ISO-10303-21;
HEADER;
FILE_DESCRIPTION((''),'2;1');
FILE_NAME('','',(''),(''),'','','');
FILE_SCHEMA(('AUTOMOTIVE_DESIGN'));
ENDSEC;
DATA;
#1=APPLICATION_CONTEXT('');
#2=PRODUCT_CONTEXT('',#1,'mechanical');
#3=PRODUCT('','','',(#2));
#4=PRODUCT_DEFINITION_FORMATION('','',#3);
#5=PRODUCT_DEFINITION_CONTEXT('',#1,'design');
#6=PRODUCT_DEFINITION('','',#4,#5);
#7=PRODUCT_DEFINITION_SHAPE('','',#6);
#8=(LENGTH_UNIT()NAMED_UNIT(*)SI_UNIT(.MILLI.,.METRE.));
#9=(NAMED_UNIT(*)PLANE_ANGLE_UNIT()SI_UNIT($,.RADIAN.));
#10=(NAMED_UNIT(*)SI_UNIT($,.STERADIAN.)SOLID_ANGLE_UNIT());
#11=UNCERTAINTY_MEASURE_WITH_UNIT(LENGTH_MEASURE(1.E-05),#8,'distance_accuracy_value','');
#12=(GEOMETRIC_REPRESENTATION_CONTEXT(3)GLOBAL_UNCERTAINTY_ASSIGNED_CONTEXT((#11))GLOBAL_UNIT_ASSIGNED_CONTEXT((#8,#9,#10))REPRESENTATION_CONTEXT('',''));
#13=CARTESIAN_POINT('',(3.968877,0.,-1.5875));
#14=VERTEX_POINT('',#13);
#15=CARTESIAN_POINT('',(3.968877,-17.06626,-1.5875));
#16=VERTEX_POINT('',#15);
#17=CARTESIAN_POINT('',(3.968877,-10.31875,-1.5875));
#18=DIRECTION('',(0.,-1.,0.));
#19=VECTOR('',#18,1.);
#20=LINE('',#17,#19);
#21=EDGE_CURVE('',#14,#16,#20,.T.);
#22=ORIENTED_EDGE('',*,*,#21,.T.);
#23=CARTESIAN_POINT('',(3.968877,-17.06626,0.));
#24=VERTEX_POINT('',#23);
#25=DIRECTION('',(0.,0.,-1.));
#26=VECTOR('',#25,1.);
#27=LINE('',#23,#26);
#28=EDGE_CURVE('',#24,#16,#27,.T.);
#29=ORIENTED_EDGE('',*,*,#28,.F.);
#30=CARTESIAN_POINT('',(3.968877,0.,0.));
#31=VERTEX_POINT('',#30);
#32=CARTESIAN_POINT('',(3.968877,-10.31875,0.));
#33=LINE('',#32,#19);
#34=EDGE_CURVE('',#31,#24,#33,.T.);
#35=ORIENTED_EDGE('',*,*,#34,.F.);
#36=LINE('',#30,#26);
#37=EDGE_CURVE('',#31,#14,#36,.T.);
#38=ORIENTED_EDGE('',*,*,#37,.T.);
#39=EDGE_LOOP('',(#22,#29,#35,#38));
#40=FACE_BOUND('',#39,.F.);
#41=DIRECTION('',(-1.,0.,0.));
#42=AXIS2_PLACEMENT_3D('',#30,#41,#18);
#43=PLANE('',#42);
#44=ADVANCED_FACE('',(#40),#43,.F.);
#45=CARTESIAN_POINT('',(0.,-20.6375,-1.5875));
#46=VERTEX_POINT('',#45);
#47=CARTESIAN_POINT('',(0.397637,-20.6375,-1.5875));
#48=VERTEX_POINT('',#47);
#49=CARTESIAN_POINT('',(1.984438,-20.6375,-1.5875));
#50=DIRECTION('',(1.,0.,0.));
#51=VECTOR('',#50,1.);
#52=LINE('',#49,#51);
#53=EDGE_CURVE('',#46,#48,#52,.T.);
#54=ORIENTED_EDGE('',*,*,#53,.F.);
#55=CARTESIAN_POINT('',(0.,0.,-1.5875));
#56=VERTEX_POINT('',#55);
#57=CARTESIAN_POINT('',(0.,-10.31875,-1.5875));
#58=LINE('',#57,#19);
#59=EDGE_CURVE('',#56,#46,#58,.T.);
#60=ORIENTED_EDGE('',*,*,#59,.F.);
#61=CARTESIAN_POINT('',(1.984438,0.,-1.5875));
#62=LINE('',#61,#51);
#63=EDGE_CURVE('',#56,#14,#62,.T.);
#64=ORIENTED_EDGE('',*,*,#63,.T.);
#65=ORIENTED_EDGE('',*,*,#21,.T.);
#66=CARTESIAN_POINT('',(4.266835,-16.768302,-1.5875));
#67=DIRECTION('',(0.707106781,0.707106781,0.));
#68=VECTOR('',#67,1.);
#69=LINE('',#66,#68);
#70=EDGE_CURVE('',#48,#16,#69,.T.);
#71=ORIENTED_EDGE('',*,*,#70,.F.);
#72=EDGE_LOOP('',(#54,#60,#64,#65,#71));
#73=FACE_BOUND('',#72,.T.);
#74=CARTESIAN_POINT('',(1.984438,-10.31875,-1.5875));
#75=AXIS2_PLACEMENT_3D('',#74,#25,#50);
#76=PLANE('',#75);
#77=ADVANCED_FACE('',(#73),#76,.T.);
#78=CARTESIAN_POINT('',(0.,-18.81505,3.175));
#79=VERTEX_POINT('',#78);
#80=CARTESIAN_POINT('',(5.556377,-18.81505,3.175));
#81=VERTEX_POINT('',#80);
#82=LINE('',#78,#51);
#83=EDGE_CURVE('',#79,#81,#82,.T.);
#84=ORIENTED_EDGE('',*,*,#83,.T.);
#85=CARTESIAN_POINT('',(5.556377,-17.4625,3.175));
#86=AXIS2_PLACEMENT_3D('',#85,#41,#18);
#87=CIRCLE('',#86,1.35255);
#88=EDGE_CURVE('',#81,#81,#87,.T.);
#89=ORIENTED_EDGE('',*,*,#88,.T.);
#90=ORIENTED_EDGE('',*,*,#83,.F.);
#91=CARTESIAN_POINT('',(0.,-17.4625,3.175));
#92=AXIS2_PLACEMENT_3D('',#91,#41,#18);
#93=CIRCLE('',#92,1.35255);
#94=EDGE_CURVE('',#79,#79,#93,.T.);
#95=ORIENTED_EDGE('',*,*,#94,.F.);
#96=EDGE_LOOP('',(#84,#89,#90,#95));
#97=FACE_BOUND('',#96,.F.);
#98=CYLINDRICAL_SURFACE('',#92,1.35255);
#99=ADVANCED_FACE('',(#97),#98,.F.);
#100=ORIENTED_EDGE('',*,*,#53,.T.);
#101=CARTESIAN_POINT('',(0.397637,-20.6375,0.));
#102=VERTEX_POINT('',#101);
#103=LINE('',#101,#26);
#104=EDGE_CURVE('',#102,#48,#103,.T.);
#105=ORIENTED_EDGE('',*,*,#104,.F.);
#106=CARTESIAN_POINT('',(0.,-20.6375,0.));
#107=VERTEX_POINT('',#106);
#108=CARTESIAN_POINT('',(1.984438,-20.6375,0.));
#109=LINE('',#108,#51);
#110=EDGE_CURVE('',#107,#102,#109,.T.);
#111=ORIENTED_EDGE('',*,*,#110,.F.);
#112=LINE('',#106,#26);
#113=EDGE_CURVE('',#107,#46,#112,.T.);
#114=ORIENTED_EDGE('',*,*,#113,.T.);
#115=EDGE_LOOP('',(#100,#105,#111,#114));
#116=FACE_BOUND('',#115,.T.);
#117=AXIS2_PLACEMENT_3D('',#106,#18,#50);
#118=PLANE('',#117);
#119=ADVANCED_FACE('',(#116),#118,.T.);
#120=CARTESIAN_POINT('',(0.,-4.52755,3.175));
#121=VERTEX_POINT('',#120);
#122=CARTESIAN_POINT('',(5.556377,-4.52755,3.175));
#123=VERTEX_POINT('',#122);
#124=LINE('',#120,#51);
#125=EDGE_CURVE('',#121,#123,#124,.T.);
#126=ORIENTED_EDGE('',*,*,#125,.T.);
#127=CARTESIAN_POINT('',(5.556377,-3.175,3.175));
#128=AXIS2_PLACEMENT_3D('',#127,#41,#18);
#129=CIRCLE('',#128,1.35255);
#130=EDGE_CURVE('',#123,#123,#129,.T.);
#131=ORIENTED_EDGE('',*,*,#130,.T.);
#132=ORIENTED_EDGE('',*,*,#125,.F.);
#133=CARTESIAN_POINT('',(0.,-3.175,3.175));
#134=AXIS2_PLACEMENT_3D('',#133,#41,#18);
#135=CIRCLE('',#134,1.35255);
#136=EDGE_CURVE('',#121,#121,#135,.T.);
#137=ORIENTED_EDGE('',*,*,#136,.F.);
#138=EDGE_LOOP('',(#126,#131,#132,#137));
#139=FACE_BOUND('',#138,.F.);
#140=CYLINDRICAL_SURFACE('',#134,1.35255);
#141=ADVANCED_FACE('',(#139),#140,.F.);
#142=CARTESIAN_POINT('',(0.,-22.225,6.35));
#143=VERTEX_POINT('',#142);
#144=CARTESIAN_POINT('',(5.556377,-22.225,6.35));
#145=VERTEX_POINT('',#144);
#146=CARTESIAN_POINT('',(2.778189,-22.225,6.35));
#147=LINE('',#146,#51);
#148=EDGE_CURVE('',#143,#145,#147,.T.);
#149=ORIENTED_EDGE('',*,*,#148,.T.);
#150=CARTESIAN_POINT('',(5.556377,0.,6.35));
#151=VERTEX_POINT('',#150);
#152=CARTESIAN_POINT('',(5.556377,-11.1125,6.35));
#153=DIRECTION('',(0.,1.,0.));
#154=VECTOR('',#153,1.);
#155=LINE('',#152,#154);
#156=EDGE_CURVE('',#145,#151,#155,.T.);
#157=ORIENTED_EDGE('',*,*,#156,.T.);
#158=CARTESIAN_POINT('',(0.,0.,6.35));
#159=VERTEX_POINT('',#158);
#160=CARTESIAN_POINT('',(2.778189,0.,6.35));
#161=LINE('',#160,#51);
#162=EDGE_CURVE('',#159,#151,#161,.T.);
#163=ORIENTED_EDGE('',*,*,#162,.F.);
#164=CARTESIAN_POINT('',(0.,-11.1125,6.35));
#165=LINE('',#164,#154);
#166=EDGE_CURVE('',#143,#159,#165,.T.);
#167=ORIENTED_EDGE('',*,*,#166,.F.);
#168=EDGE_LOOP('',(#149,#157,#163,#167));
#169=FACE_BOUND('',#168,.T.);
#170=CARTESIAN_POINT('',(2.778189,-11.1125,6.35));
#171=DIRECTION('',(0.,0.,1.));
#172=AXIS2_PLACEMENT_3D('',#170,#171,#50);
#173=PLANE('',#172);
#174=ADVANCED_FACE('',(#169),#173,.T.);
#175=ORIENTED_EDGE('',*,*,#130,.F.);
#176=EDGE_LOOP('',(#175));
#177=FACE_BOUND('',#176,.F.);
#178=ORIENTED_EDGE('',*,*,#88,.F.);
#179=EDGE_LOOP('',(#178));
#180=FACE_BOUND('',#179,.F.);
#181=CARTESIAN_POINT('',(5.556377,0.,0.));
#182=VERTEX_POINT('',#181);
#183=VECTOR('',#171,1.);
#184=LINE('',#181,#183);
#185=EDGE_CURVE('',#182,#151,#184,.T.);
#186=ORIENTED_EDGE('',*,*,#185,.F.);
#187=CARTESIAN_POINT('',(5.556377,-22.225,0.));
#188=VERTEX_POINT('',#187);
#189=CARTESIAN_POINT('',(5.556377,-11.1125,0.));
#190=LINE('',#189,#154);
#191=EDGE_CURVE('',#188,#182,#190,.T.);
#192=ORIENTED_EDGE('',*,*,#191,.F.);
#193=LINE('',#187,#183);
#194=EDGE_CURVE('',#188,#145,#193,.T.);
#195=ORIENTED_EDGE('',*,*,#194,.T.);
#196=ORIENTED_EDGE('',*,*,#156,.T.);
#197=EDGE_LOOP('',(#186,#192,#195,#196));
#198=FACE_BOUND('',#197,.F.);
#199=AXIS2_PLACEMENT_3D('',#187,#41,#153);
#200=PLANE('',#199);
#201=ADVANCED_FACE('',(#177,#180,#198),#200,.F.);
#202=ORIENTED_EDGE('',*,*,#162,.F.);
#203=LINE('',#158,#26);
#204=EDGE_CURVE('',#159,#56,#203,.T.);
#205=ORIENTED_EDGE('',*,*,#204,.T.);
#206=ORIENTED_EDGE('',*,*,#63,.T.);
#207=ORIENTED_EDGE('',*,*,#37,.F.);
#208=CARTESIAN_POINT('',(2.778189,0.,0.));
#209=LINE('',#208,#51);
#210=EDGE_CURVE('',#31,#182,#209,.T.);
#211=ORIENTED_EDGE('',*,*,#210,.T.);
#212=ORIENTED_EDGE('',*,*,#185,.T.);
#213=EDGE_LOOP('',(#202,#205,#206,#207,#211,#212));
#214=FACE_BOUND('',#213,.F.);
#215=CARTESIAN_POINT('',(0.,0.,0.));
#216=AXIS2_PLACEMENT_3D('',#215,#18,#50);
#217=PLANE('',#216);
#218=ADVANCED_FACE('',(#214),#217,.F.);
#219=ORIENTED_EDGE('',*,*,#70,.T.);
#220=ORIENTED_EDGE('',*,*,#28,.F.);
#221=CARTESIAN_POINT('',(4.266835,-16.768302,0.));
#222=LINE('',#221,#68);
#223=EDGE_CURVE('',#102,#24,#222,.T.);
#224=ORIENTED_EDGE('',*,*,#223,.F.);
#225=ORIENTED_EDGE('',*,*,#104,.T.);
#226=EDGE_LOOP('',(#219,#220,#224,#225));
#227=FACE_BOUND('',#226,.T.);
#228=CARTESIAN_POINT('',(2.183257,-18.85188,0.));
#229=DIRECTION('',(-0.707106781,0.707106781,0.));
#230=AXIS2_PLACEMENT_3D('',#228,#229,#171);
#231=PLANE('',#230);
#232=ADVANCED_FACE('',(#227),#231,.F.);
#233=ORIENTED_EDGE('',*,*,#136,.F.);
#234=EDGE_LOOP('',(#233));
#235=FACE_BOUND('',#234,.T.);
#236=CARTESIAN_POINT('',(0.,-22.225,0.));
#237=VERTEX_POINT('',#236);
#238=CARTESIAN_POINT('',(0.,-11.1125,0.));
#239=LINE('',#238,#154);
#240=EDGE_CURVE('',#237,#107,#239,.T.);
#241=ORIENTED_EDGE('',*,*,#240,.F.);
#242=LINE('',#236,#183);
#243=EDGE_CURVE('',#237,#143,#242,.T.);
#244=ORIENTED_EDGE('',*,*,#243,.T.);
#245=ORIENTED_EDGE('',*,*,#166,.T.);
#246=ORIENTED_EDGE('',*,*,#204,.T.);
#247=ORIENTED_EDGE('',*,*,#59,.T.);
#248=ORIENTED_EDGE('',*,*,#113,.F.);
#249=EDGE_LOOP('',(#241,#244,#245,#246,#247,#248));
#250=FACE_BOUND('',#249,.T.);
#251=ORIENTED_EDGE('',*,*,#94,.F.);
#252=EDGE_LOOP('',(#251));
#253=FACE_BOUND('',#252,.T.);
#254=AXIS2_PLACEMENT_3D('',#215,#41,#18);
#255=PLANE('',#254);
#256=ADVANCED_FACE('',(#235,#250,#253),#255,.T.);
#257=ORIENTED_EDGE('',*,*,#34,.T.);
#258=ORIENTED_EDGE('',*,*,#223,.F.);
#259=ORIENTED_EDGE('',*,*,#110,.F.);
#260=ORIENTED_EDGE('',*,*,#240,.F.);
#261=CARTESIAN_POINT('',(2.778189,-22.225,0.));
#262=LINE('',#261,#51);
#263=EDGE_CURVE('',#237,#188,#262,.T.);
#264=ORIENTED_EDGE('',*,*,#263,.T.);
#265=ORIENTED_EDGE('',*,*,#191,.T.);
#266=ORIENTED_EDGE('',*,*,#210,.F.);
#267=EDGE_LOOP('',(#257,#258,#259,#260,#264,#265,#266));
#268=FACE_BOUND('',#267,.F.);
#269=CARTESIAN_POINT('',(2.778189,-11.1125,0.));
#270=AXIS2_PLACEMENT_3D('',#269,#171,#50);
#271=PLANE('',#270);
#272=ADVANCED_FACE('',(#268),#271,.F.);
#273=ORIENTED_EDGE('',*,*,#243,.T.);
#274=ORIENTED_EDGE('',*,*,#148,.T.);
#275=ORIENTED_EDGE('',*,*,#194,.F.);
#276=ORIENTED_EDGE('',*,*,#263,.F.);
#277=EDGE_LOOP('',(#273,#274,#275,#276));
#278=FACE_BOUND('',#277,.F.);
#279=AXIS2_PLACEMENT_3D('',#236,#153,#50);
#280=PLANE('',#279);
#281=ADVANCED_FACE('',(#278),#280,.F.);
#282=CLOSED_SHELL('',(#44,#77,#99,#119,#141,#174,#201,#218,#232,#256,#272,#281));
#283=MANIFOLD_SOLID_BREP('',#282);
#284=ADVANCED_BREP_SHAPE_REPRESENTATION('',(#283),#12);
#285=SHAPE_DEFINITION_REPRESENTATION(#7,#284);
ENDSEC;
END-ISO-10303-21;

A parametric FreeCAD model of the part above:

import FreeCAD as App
import Part
import Sketcher
from FreeCAD import Vector
Q = App.Units.Quantity


def edges_at(feature, points):
    """Names of the edges that pass closest to the given points."""
    edges = feature.Shape.Edges
    near = lambda p: min(range(len(edges)), key=lambda i: edges[i].distToShape(Part.Vertex(*p))[0])
    return sorted({f"Edge{near(p) + 1}" for p in points})


def add_polygon(sketch, points):
    """Adds a closed chain of lines whose ends are joined by coincident constraints."""
    first, n = sketch.GeometryCount, len(points)
    for a, b in zip(points, points[1:] + points[:1]):
        sketch.addGeometry(Part.LineSegment(App.Vector(*a, 0), App.Vector(*b, 0)), False)
    for i in range(n):
        sketch.addConstraint(Sketcher.Constraint("Coincident", first + i, 2, first + (i + 1) % n, 1))

doc = App.newDocument("Part")
body = doc.addObject("PartDesign::Body", "Body")

sketch1 = body.newObject("Sketcher::SketchObject", "Sketch")
sketch1.AttachmentSupport = (doc.getObject("XY_Plane"), [""])
sketch1.MapMode = "FlatFace"
add_polygon(sketch1, [(0, 0), (0, -22), (6, -22), (6, 0)])
sketch1.addConstraint(Sketcher.Constraint("Vertical", 0))
sketch1.addConstraint(Sketcher.Constraint("Horizontal", 1))
sketch1.addConstraint(Sketcher.Constraint("Vertical", 2))
sketch1.addConstraint(Sketcher.Constraint("Horizontal", 3))
sketch1.addConstraint(Sketcher.Constraint("Coincident", 3, 2, -1, 1))
sketch1.addConstraint(Sketcher.Constraint("DistanceY", 0, 2, 0, 1, Q("0.875 in")))
sketch1.addConstraint(Sketcher.Constraint("DistanceX", 1, 1, 1, 2, Q("5.556377 mm")))
pad1 = body.newObject("PartDesign::Pad", "Pad")
pad1.Profile = sketch1
pad1.Length = Q("0.25 in")

sketch2 = body.newObject("Sketcher::SketchObject", "Sketch001")
sketch2.AttachmentSupport = (doc.getObject("XY_Plane"), [""])
sketch2.MapMode = "FlatFace"
add_polygon(sketch2, [(0, -20.6), (0, 0), (4, 0), (4, -20.6)])
sketch2.addConstraint(Sketcher.Constraint("Vertical", 0))
sketch2.addConstraint(Sketcher.Constraint("Horizontal", 1))
sketch2.addConstraint(Sketcher.Constraint("Vertical", 2))
sketch2.addConstraint(Sketcher.Constraint("Horizontal", 3))
sketch2.addConstraint(Sketcher.Constraint("Coincident", 0, 2, -1, 1))
sketch2.addConstraint(Sketcher.Constraint("DistanceY", 0, 1, 0, 2, Q("0.8125 in")))
sketch2.addConstraint(Sketcher.Constraint("DistanceX", 1, 1, 1, 2, Q("3.968877 mm")))
pad2 = body.newObject("PartDesign::Pad", "Pad001")
pad2.Profile = sketch2
pad2.Length = Q("0.0625 in")
pad2.Reversed = True

sketch3 = body.newObject("Sketcher::SketchObject", "Sketch002")
sketch3.AttachmentSupport = (doc.getObject("YZ_Plane"), [""])
sketch3.MapMode = "FlatFace"
sketch3.addGeometry(Part.Circle(Vector(-17.5, 3.2, 0), Vector(0, 0, 1), 1.4), False)
sketch3.addGeometry(Part.Circle(Vector(-3.2, 3.2, 0), Vector(0, 0, 1), 1.4), False)
sketch3.addConstraint(Sketcher.Constraint("Equal", 0, 1))
sketch3.addConstraint(Sketcher.Constraint("Horizontal", 0, 3, 1, 3))
sketch3.addConstraint(Sketcher.Constraint("Diameter", 0, Q("0.1065 in")))
sketch3.addConstraint(Sketcher.Constraint("DistanceX", 0, 3, -1, 1, Q("0.6875 in")))
sketch3.addConstraint(Sketcher.Constraint("DistanceY", -1, 1, 0, 3, Q("0.125 in")))
sketch3.addConstraint(Sketcher.Constraint("DistanceX", 1, 3, -1, 1, Q("0.125 in")))
pocket1 = body.newObject("PartDesign::Pocket", "Pocket")
pocket1.Profile = sketch3
pocket1.Length = Q("0.25 in")
pocket1.Reversed = True
doc.recompute()

chamfer = body.newObject("PartDesign::Chamfer", "Chamfer")
chamfer.Base = (pocket1, edges_at(pocket1, [(3.969, -20.637, -0.794)]))
chamfer.Size = Q("0.1406 in")

doc.recompute()
